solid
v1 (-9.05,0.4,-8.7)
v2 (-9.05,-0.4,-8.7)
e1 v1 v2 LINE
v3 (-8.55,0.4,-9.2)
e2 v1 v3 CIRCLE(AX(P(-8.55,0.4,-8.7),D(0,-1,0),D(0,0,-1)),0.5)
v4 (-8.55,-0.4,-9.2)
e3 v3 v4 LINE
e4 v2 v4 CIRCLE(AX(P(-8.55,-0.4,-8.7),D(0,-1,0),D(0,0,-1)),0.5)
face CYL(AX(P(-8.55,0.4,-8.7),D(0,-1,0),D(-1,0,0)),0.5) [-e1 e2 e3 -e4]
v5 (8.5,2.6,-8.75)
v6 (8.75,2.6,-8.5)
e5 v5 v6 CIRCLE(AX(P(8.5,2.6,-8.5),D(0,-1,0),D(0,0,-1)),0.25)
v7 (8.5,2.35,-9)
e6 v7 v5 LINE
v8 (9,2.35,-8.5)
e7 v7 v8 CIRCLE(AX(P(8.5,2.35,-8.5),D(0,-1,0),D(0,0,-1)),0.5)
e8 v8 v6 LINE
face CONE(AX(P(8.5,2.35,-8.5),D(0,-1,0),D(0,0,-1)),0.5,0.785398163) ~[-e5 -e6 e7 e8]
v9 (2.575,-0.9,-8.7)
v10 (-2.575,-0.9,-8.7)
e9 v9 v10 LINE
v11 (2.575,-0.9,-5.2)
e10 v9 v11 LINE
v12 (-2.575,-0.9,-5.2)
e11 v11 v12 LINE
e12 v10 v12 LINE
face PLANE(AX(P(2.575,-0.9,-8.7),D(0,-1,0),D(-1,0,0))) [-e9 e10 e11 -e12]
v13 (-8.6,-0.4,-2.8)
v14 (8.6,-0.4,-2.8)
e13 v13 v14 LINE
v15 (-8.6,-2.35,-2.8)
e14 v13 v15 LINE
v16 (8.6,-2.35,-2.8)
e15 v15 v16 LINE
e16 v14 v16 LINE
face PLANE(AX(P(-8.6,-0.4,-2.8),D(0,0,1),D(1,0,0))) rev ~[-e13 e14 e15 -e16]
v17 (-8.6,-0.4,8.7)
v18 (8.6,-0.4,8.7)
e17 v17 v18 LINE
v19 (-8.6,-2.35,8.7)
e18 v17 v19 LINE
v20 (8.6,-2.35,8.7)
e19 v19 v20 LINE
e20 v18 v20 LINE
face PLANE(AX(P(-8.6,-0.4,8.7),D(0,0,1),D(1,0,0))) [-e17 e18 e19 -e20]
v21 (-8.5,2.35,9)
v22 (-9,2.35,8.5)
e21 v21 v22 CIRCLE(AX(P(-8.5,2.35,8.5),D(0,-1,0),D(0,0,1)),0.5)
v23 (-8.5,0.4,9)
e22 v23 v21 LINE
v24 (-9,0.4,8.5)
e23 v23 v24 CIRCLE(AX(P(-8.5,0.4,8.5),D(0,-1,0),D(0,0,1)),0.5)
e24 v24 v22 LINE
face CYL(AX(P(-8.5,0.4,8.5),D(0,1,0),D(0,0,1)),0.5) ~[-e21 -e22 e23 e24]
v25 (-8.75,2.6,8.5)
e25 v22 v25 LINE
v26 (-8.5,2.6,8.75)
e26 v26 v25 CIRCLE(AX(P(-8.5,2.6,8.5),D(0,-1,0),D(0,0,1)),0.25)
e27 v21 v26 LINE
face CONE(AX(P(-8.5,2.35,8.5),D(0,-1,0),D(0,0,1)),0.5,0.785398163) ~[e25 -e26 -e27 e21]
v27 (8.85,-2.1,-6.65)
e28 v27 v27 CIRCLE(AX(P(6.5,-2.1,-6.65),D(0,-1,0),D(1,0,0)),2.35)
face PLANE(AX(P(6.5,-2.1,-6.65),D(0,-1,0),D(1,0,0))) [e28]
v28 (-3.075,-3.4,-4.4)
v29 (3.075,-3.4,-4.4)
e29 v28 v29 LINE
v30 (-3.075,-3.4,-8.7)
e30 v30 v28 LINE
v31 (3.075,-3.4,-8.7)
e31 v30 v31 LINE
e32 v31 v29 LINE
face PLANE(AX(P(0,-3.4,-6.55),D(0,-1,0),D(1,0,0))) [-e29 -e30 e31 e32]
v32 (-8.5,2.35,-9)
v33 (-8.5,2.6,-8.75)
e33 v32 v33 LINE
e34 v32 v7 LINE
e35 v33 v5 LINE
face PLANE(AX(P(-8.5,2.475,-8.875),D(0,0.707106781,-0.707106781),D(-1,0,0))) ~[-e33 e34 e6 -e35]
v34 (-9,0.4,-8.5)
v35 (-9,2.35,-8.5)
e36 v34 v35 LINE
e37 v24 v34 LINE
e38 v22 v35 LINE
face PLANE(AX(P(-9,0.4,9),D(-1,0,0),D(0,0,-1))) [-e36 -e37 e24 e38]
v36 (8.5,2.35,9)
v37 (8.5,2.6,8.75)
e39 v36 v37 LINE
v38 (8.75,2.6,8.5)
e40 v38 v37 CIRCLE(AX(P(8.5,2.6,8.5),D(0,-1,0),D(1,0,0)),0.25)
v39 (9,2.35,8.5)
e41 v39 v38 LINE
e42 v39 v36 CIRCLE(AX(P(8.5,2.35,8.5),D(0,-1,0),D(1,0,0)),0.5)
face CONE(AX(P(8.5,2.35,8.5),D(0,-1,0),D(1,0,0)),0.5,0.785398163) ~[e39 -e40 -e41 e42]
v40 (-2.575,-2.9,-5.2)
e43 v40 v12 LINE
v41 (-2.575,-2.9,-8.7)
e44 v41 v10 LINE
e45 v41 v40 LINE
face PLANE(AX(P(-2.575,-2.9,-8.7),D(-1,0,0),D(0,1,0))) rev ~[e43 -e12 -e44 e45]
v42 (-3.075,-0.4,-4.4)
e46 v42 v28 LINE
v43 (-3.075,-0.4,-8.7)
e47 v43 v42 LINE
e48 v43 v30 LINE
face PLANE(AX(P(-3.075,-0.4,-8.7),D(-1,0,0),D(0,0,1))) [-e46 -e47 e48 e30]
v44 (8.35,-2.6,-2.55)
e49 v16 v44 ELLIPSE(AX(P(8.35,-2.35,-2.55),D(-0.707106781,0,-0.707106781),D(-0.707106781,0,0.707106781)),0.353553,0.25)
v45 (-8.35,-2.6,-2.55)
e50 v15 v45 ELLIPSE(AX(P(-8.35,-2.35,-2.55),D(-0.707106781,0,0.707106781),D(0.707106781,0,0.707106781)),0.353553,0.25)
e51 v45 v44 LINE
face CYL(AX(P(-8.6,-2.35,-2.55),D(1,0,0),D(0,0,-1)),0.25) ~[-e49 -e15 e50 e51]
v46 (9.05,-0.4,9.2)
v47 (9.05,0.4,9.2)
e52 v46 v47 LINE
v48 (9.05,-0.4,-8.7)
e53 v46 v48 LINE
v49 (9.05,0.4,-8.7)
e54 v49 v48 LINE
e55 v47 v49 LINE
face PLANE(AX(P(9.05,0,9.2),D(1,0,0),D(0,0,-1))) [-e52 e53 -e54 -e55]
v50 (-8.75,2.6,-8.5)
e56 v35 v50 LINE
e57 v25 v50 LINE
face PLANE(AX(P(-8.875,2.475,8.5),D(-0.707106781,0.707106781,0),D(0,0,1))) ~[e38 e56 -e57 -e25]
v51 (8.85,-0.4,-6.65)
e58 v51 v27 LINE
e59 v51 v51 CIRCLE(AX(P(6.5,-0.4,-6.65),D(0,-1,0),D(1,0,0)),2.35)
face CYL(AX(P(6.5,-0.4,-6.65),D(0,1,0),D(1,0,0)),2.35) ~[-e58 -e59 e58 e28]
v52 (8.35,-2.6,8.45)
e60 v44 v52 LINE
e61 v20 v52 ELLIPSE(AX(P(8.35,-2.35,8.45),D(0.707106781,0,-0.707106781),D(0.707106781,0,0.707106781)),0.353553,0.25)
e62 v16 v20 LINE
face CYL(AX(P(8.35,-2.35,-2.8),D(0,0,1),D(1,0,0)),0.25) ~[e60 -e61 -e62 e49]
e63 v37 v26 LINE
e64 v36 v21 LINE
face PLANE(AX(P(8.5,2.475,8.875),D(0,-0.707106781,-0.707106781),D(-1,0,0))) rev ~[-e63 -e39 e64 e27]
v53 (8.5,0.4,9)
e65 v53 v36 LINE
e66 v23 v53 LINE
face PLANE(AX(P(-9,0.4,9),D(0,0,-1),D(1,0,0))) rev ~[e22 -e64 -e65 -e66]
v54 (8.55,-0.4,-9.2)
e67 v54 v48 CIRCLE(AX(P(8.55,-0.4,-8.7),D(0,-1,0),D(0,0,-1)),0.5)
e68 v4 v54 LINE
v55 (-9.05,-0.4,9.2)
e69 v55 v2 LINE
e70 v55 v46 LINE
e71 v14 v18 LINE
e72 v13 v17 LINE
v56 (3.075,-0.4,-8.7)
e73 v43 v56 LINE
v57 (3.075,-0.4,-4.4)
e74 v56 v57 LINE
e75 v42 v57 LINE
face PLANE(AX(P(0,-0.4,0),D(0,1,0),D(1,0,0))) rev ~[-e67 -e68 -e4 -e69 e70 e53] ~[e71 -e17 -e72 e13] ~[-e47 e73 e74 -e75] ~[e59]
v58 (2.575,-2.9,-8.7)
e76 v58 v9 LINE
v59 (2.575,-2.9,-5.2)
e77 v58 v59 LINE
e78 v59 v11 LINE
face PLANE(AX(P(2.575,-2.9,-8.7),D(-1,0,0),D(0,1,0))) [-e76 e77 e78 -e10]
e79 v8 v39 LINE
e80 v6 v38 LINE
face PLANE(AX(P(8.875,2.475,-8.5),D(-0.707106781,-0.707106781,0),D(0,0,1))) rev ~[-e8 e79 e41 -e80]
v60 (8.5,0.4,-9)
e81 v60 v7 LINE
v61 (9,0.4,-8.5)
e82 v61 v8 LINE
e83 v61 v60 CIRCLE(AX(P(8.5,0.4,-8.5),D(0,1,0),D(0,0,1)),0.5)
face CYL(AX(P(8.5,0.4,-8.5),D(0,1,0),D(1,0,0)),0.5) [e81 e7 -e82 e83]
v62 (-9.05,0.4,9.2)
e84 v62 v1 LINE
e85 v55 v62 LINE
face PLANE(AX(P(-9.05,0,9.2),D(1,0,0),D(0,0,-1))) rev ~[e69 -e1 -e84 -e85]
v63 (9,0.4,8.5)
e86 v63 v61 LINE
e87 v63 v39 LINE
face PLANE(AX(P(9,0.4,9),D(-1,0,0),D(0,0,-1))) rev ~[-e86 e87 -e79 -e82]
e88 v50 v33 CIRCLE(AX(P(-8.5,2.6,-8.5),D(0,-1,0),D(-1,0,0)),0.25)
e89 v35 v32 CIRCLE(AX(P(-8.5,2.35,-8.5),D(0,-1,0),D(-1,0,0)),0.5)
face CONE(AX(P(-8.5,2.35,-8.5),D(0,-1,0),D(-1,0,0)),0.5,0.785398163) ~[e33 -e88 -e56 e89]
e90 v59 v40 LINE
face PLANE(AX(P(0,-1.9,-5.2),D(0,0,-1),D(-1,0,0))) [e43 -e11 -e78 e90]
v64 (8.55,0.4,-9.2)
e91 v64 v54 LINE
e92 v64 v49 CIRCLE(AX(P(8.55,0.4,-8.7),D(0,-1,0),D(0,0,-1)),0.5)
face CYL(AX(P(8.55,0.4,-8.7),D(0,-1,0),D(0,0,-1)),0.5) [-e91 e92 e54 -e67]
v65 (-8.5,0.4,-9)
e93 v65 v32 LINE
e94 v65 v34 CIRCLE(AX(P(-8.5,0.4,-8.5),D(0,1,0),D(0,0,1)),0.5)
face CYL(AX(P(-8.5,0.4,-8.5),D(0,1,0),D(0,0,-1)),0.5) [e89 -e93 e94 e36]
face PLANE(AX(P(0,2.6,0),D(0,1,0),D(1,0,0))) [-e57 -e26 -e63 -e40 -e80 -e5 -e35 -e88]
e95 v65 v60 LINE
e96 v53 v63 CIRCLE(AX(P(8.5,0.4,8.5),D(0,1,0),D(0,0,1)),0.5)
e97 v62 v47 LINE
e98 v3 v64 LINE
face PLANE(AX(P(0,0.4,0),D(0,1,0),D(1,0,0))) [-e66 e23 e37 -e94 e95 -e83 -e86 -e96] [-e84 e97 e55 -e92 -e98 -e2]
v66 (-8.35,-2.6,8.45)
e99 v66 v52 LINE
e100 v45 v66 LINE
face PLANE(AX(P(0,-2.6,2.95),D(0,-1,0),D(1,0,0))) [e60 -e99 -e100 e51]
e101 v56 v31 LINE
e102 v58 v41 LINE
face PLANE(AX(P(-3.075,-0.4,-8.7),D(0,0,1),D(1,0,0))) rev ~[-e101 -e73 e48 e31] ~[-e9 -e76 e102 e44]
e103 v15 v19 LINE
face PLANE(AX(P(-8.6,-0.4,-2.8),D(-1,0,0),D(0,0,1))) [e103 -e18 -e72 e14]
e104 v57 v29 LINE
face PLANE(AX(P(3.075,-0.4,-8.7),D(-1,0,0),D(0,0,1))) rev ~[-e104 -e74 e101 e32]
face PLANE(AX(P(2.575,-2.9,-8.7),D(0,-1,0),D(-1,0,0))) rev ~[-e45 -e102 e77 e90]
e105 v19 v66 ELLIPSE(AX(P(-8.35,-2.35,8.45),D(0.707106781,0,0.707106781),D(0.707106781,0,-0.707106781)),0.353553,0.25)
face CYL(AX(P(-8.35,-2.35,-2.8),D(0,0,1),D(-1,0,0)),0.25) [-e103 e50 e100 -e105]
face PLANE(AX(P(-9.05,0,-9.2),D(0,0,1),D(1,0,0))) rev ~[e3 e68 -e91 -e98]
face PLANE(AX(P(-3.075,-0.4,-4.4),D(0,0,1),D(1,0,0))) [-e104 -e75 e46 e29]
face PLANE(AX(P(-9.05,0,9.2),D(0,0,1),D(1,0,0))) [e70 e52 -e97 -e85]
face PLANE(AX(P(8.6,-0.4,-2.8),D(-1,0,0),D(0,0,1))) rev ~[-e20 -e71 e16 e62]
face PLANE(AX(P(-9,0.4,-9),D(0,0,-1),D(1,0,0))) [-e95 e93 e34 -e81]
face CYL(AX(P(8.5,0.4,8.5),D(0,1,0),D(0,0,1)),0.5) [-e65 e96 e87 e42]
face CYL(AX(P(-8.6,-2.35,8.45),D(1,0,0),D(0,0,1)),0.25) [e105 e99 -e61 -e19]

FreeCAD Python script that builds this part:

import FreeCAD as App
import Part
import Sketcher

V = App.Vector


def edges_at(feature, points):
    """Names of the edges that pass closest to the given points."""
    edges = feature.Shape.Edges
    near = lambda p: min(range(len(edges)), key=lambda i: edges[i].distToShape(Part.Vertex(*p))[0])
    return sorted({f"Edge{near(p) + 1}" for p in points})


def add_polygon(sketch, points):
    """Adds a closed chain of lines whose ends are joined by coincident constraints."""
    first, n = sketch.GeometryCount, len(points)
    for a, b in zip(points, points[1:] + points[:1]):
        sketch.addGeometry(Part.LineSegment(App.Vector(*a, 0), App.Vector(*b, 0)), False)
    for i in range(n):
        sketch.addConstraint(Sketcher.Constraint("Coincident", first + i, 2, first + (i + 1) % n, 1))

doc = App.newDocument("Part")
body = doc.addObject("PartDesign::Body", "Body")

sketch1 = doc.addObject("Sketcher::SketchObject", "Sketch")
body.addObject(sketch1)
sketch1.AttachmentSupport = (doc.XZ_Plane, [""])
sketch1.MapMode = "FlatFace"
add_polygon(sketch1, [(-9, -9), (-9, 9), (9, 9), (9, -9)])
sketch1.addConstraint([
    Sketcher.Constraint("Vertical", 0),
    Sketcher.Constraint("Horizontal", 1),
    Sketcher.Constraint("Vertical", 2),
    Sketcher.Constraint("Horizontal", 3),
    Sketcher.Constraint("Symmetric", 0, 2, 2, 2, -1, 1),
    Sketcher.Constraint("DistanceX", 1, 1, 1, 2, 18.1),
    Sketcher.Constraint("DistanceY", 0, 1, 0, 2, 18.4),
])
pad1 = doc.addObject("PartDesign::Pad", "Pad")
body.addObject(pad1)
pad1.Profile = sketch1
pad1.Length = 0.8
pad1.Midplane = True

sketch2 = doc.addObject("Sketcher::SketchObject", "Sketch001")
body.addObject(sketch2)
sketch2.AttachmentSupport = (doc.XZ_Plane, [""])
sketch2.MapMode = "FlatFace"
sketch2.AttachmentOffset = App.Placement(V(0, 0, -0.4), App.Rotation())
add_polygon(sketch2, [(-9, -9), (-9, 9), (9, 9), (9, -9)])
sketch2.addConstraint([
    Sketcher.Constraint("Vertical", 0),
    Sketcher.Constraint("Horizontal", 1),
    Sketcher.Constraint("Vertical", 2),
    Sketcher.Constraint("Horizontal", 3),
    Sketcher.Constraint("Symmetric", 0, 2, 2, 2, -1, 1),
    Sketcher.Constraint("Equal", 3, 0),
    Sketcher.Constraint("DistanceX", 1, 1, 1, 2, 18.0),
])
pad2 = doc.addObject("PartDesign::Pad", "Pad001")
body.addObject(pad2)
pad2.Profile = sketch2
pad2.Length = 2.2
pad2.Reversed = True

sketch3 = doc.addObject("Sketcher::SketchObject", "Sketch002")
body.addObject(sketch3)
sketch3.AttachmentSupport = (doc.XZ_Plane, [""])
sketch3.MapMode = "FlatFace"
sketch3.AttachmentOffset = App.Placement(V(0, 0, 0.4), App.Rotation())
add_polygon(sketch3, [(-3.1, -4.4), (-3.1, -8.7), (3.1, -8.7), (3.1, -4.4)])
sketch3.addConstraint([
    Sketcher.Constraint("Vertical", 0),
    Sketcher.Constraint("Horizontal", 1),
    Sketcher.Constraint("Vertical", 2),
    Sketcher.Constraint("Horizontal", 3),
    Sketcher.Constraint("DistanceY", 0, 2, 0, 1, 4.3),
    Sketcher.Constraint("DistanceX", 1, 1, 1, 2, 6.15),
    Sketcher.Constraint("DistanceY", 0, 2, -1, 1, 8.7),
    Sketcher.Constraint("DistanceX", 0, 2, -1, 1, 3.075),
])
pad3 = doc.addObject("PartDesign::Pad", "Pad002")
body.addObject(pad3)
pad3.Profile = sketch3
pad3.Length = 3

sketch4 = doc.addObject("Sketcher::SketchObject", "Sketch003")
body.addObject(sketch4)
sketch4.AttachmentSupport = (doc.XY_Plane, [""])
sketch4.MapMode = "FlatFace"
sketch4.AttachmentOffset = App.Placement(V(0, 0, -8.7), App.Rotation())
add_polygon(sketch4, [(2.6, -0.9), (2.6, -2.9), (-2.6, -2.9), (-2.6, -0.9)])
sketch4.addConstraint([
    Sketcher.Constraint("Vertical", 0),
    Sketcher.Constraint("Horizontal", 1),
    Sketcher.Constraint("Vertical", 2),
    Sketcher.Constraint("Horizontal", 3),
    Sketcher.Constraint("DistanceY", 0, 2, 0, 1, 2.0),
    Sketcher.Constraint("DistanceX", 1, 2, 1, 1, 5.15),
    Sketcher.Constraint("DistanceY", 0, 2, -1, 1, 2.9),
    Sketcher.Constraint("DistanceX", -1, 1, 0, 2, 2.575),
])
pocket1 = doc.addObject("PartDesign::Pocket", "Pocket")
body.addObject(pocket1)
pocket1.Profile = sketch4
pocket1.Length = 3.5
pocket1.Reversed = True

sketch5 = doc.addObject("Sketcher::SketchObject", "Sketch004")
body.addObject(sketch5)
sketch5.AttachmentSupport = (doc.XZ_Plane, [""])
sketch5.MapMode = "FlatFace"
sketch5.AttachmentOffset = App.Placement(V(0, 0, 0.4), App.Rotation())
add_polygon(sketch5, [(-9, 9), (-9, -3), (9, -3), (9, 9)])
sketch5.addConstraint([
    Sketcher.Constraint("Vertical", 0),
    Sketcher.Constraint("Horizontal", 1),
    Sketcher.Constraint("Vertical", 2),
    Sketcher.Constraint("Horizontal", 3),
    Sketcher.Constraint("DistanceX", 1, 1, 1, 2, 17.2),
    Sketcher.Constraint("DistanceY", 0, 2, 0, 1, 11.5),
    Sketcher.Constraint("DistanceX", 0, 2, -1, 1, 8.6),
    Sketcher.Constraint("DistanceY", 0, 2, -1, 1, 2.8),
])
pad4 = doc.addObject("PartDesign::Pad", "Pad003")
body.addObject(pad4)
pad4.Profile = sketch5
pad4.Length = 2.2
doc.recompute()

fillet = doc.addObject("PartDesign::Fillet", "Fillet")
body.addObject(fillet)
fillet.Base = (pad4, edges_at(pad4, [
    (8.6, -2.6, 2.95),
    (0, -2.6, 8.7),
    (-8.6, -2.6, 2.95),
    (0, -2.6, -2.8),
]))
fillet.Radius = 0.25

sketch6 = doc.addObject("Sketcher::SketchObject", "Sketch005")
body.addObject(sketch6)
sketch6.AttachmentSupport = (doc.XZ_Plane, [""])
sketch6.MapMode = "FlatFace"
sketch6.AttachmentOffset = App.Placement(V(0, 0, 0.4), App.Rotation())
sketch6.addGeometry(Part.Circle(V(6.5, -6.7, 0), V(0, 0, 1), 2.4), False)
sketch6.addConstraint([
    Sketcher.Constraint("Diameter", 0, 4.7),
    Sketcher.Constraint("DistanceX", -1, 1, 0, 3, 6.5),
    Sketcher.Constraint("DistanceY", 0, 3, -1, 1, 6.65),
])
pad5 = doc.addObject("PartDesign::Pad", "Pad004")
body.addObject(pad5)
pad5.Profile = sketch6
pad5.Length = 1.7
doc.recompute()

fillet2 = doc.addObject("PartDesign::Fillet", "Fillet001")
body.addObject(fillet2)
fillet2.Base = (pad5, edges_at(pad5, [
    (-9, 1.5, -9),
    (-9, 1.5, 9),
    (9, 1.5, 9),
    (9, 1.5, -9),
]))
fillet2.Radius = 0.5
doc.recompute()

chamfer = doc.addObject("PartDesign::Chamfer", "Chamfer")
body.addObject(chamfer)
chamfer.Base = (fillet2, edges_at(fillet2, [
    (-9, 2.6, 0),
    (0, 2.6, -9),
    (0, 2.6, 9),
    (9, 2.6, 0),
    (8.854, 2.6, -8.854),
    (8.854, 2.6, 8.854),
    (-8.854, 2.6, 8.854),
    (-8.854, 2.6, -8.854),
]))
chamfer.Size = 0.25
doc.recompute()

fillet3 = doc.addObject("PartDesign::Fillet", "Fillet002")
body.addObject(fillet3)
fillet3.Base = (chamfer, edges_at(chamfer, [(-9.05, 0, -9.2), (9.05, 0, -9.2)]))
fillet3.Radius = 0.5

doc.recompute()
